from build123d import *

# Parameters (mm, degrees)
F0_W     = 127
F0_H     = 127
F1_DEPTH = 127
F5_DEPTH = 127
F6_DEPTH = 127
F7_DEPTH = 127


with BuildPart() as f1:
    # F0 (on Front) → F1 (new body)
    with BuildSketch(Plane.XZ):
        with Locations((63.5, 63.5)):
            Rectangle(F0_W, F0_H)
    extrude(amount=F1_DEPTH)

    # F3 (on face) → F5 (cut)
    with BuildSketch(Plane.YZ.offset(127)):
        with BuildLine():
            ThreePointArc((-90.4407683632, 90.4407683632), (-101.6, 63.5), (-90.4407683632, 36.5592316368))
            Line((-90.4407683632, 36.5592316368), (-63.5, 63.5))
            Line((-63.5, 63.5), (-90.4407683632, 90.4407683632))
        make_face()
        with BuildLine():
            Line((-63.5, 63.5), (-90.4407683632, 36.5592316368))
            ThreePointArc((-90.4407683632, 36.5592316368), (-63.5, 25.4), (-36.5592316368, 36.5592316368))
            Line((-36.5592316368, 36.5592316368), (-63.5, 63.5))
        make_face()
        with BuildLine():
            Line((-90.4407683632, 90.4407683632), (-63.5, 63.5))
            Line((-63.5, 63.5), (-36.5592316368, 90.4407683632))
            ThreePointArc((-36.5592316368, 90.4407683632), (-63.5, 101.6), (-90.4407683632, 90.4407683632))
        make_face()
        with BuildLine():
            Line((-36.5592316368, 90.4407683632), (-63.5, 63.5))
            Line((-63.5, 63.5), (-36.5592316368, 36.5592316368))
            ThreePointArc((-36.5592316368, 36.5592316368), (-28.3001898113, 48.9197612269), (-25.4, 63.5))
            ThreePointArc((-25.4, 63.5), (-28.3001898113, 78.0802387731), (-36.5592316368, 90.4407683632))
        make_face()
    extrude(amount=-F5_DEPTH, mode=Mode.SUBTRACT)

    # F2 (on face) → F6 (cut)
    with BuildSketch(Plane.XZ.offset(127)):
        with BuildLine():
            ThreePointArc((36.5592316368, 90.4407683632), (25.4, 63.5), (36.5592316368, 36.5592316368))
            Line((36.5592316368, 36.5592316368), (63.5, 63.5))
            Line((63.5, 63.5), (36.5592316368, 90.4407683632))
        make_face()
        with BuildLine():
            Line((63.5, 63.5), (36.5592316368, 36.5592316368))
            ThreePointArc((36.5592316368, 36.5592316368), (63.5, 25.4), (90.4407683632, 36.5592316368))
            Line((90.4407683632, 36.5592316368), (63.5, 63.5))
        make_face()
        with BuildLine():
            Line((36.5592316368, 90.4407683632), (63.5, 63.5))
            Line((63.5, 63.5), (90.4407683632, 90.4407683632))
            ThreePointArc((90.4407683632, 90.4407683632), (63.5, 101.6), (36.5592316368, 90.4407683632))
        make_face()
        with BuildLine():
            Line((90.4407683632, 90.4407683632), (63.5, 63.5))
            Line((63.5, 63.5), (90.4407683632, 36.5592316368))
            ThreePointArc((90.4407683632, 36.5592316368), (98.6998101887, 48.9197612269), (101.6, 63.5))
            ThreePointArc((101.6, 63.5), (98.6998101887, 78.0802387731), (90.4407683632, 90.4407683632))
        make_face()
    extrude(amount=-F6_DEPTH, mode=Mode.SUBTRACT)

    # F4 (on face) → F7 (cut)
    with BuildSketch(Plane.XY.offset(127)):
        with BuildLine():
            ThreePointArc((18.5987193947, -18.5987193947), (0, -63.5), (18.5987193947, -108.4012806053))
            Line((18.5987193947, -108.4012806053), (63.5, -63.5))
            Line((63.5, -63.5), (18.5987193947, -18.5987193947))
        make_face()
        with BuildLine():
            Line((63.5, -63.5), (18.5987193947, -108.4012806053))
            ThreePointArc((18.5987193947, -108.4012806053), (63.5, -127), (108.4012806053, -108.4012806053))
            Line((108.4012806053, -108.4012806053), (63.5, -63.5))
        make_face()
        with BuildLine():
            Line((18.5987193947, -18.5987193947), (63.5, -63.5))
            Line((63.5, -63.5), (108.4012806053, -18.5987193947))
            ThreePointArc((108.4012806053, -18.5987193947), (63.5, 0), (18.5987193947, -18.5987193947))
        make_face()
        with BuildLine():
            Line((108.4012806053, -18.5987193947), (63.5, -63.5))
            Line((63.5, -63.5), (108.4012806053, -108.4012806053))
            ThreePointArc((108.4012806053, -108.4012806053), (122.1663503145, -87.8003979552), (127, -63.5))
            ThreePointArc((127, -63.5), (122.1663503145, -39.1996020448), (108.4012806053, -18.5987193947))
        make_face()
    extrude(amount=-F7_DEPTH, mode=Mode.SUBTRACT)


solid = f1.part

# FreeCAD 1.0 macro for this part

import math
import FreeCAD as App
import Part
import Sketcher

V = App.Vector
Q = App.Units.Quantity


def add_polygon(sketch, points):
    """Adds a closed chain of lines whose ends are joined by coincident constraints."""
    first, n = sketch.GeometryCount, len(points)
    for a, b in zip(points, points[1:] + points[:1]):
        sketch.addGeometry(Part.LineSegment(App.Vector(*a, 0), App.Vector(*b, 0)), False)
    for i in range(n):
        sketch.addConstraint(Sketcher.Constraint("Coincident", first + i, 2, first + (i + 1) % n, 1))

doc = App.newDocument("Part")
body = doc.addObject("PartDesign::Body", "Body")
body.AllowCompound = True

sketch1 = doc.addObject("Sketcher::SketchObject", "Sketch")
body.addObject(sketch1)
sketch1.AttachmentSupport = (doc.XZ_Plane, [""])
sketch1.MapMode = "FlatFace"
add_polygon(sketch1, [(0, 127), (0, 0), (127, 0), (127, 127)])
sketch1.addConstraint(Sketcher.Constraint("Vertical", 0))
sketch1.addConstraint(Sketcher.Constraint("Horizontal", 1))
sketch1.addConstraint(Sketcher.Constraint("Vertical", 2))
sketch1.addConstraint(Sketcher.Constraint("Horizontal", 3))
sketch1.addConstraint(Sketcher.Constraint("Coincident", 0, 2, -1, 1))
sketch1.addConstraint(Sketcher.Constraint("Equal", 3, 0))
sketch1.addConstraint(Sketcher.Constraint("DistanceX", 1, 1, 1, 2, Q("5 in")))
pad1 = doc.addObject("PartDesign::Pad", "Pad")
body.addObject(pad1)
pad1.Profile = sketch1
pad1.Length = Q("5 in")

sketch2 = doc.addObject("Sketcher::SketchObject", "Sketch001")
body.addObject(sketch2)
sketch2.AttachmentSupport = (doc.YZ_Plane, [""])
sketch2.MapMode = "FlatFace"
sketch2.AttachmentOffset = App.Placement(V(0, 0, 5 * 25.4), App.Rotation())
sketch2.addGeometry(Part.ArcOfCircle(Part.Circle(V(-64, 64, 0), V(0, 0, 1), 38), math.radians(135), math.radians(225)), False)
sketch2.addGeometry(Part.ArcOfCircle(Part.Circle(V(-64, 64, 0), V(0, 0, 1), 38), math.radians(-135), math.radians(-45)), False)
sketch2.addGeometry(Part.ArcOfCircle(Part.Circle(V(-64, 64, 0), V(0, 0, 1), 38), math.radians(-45), math.radians(0)), False)
sketch2.addGeometry(Part.ArcOfCircle(Part.Circle(V(-64, 64, 0), V(0, 0, 1), 38), math.radians(0), math.radians(45)), False)
sketch2.addGeometry(Part.ArcOfCircle(Part.Circle(V(-64, 64, 0), V(0, 0, 1), 38), math.radians(45), math.radians(135)), False)
sketch2.addConstraint(Sketcher.Constraint("Tangent", 0, 2, 1, 1))
sketch2.addConstraint(Sketcher.Constraint("Tangent", 1, 2, 2, 1))
sketch2.addConstraint(Sketcher.Constraint("Tangent", 2, 2, 3, 1))
sketch2.addConstraint(Sketcher.Constraint("Tangent", 3, 2, 4, 1))
sketch2.addConstraint(Sketcher.Constraint("Tangent", 4, 2, 0, 1))
sketch2.addConstraint(Sketcher.Constraint("Coincident", 2, 3, 0, 3))
sketch2.addConstraint(Sketcher.Constraint("Horizontal", 0, 2, 1, 2))
sketch2.addConstraint(Sketcher.Constraint("Horizontal", 4, 3, 2, 2))
sketch2.addConstraint(Sketcher.Constraint("Horizontal", 3, 2, 4, 2))
sketch2.addConstraint(Sketcher.Constraint("Vertical", 1, 2, 3, 2))
sketch2.addConstraint(Sketcher.Constraint("Radius", 0, Q("1.5 in")))
sketch2.addConstraint(Sketcher.Constraint("DistanceX", 2, 2, -1, 1, Q("1 in")))
sketch2.addConstraint(Sketcher.Constraint("DistanceY", -1, 1, 0, 3, Q("2.5 in")))
sketch2.addConstraint(Sketcher.Constraint("DistanceX", 0, 2, -1, 1, Q("90.440768 mm")))
pocket1 = doc.addObject("PartDesign::Pocket", "Pocket")
body.addObject(pocket1)
pocket1.Profile = sketch2
pocket1.Length = Q("5 in")

sketch3 = doc.addObject("Sketcher::SketchObject", "Sketch002")
body.addObject(sketch3)
sketch3.AttachmentSupport = (doc.XZ_Plane, [""])
sketch3.MapMode = "FlatFace"
sketch3.AttachmentOffset = App.Placement(V(0, 0, 5 * 25.4), App.Rotation())
sketch3.addGeometry(Part.ArcOfCircle(Part.Circle(V(64, 64, 0), V(0, 0, 1), 38), math.radians(135), math.radians(225)), False)
sketch3.addGeometry(Part.ArcOfCircle(Part.Circle(V(64, 64, 0), V(0, 0, 1), 38), math.radians(-135), math.radians(-45)), False)
sketch3.addGeometry(Part.ArcOfCircle(Part.Circle(V(64, 64, 0), V(0, 0, 1), 38), math.radians(-45), math.radians(0)), False)
sketch3.addGeometry(Part.ArcOfCircle(Part.Circle(V(64, 64, 0), V(0, 0, 1), 38), math.radians(0), math.radians(45)), False)
sketch3.addGeometry(Part.ArcOfCircle(Part.Circle(V(64, 64, 0), V(0, 0, 1), 38), math.radians(45), math.radians(135)), False)
sketch3.addConstraint(Sketcher.Constraint("Tangent", 0, 2, 1, 1))
sketch3.addConstraint(Sketcher.Constraint("Tangent", 1, 2, 2, 1))
sketch3.addConstraint(Sketcher.Constraint("Tangent", 2, 2, 3, 1))
sketch3.addConstraint(Sketcher.Constraint("Tangent", 3, 2, 4, 1))
sketch3.addConstraint(Sketcher.Constraint("Tangent", 4, 2, 0, 1))
sketch3.addConstraint(Sketcher.Constraint("Coincident", 2, 3, 0, 3))
sketch3.addConstraint(Sketcher.Constraint("Horizontal", 0, 2, 1, 2))
sketch3.addConstraint(Sketcher.Constraint("Horizontal", 4, 3, 2, 2))
sketch3.addConstraint(Sketcher.Constraint("Horizontal", 3, 2, 4, 2))
sketch3.addConstraint(Sketcher.Constraint("Vertical", 1, 2, 3, 2))
sketch3.addConstraint(Sketcher.Constraint("Radius", 0, Q("1.5 in")))
sketch3.addConstraint(Sketcher.Constraint("DistanceX", -1, 1, 2, 2, Q("4 in")))
sketch3.addConstraint(Sketcher.Constraint("DistanceY", -1, 1, 0, 3, Q("2.5 in")))
sketch3.addConstraint(Sketcher.Constraint("DistanceX", -1, 1, 0, 2, Q("36.559232 mm")))
pocket2 = doc.addObject("PartDesign::Pocket", "Pocket001")
body.addObject(pocket2)
pocket2.Profile = sketch3
pocket2.Length = Q("5 in")

sketch4 = doc.addObject("Sketcher::SketchObject", "Sketch003")
body.addObject(sketch4)
sketch4.AttachmentSupport = (doc.XY_Plane, [""])
sketch4.MapMode = "FlatFace"
sketch4.AttachmentOffset = App.Placement(V(0, 0, 5 * 25.4), App.Rotation())
sketch4.addGeometry(Part.ArcOfCircle(Part.Circle(V(64, -64, 0), V(0, 0, 1), 64), math.radians(135), math.radians(225)), False)
sketch4.addGeometry(Part.ArcOfCircle(Part.Circle(V(64, -64, 0), V(0, 0, 1), 64), math.radians(-135), math.radians(-45)), False)
sketch4.addGeometry(Part.ArcOfCircle(Part.Circle(V(64, -64, 0), V(0, 0, 1), 63), math.radians(-45), math.radians(0)), False)
sketch4.addGeometry(Part.ArcOfCircle(Part.Circle(V(64, -64, 0), V(0, 0, 1), 63), math.radians(0), math.radians(45)), False)
sketch4.addGeometry(Part.ArcOfCircle(Part.Circle(V(64, -64, 0), V(0, 0, 1), 64), math.radians(45), math.radians(135)), False)
sketch4.addConstraint(Sketcher.Constraint("Tangent", 0, 2, 1, 1))
sketch4.addConstraint(Sketcher.Constraint("Tangent", 1, 2, 2, 1))
sketch4.addConstraint(Sketcher.Constraint("Tangent", 2, 2, 3, 1))
sketch4.addConstraint(Sketcher.Constraint("Tangent", 3, 2, 4, 1))
sketch4.addConstraint(Sketcher.Constraint("Tangent", 4, 2, 0, 1))
sketch4.addConstraint(Sketcher.Constraint("Coincident", 2, 3, 0, 3))
sketch4.addConstraint(Sketcher.Constraint("Horizontal", 0, 2, 1, 2))
sketch4.addConstraint(Sketcher.Constraint("Horizontal", 4, 3, 2, 2))
sketch4.addConstraint(Sketcher.Constraint("Horizontal", 3, 2, 4, 2))
sketch4.addConstraint(Sketcher.Constraint("Vertical", 1, 2, 3, 2))
sketch4.addConstraint(Sketcher.Constraint("Radius", 0, Q("2.5 in")))
sketch4.addConstraint(Sketcher.Constraint("DistanceX", -1, 1, 2, 2, Q("5 in")))
sketch4.addConstraint(Sketcher.Constraint("DistanceY", 0, 3, -1, 1, Q("2.5 in")))
sketch4.addConstraint(Sketcher.Constraint("DistanceX", -1, 1, 0, 2, Q("18.598719 mm")))
pocket3 = doc.addObject("PartDesign::Pocket", "Pocket002")
body.addObject(pocket3)
pocket3.Profile = sketch4
pocket3.Length = Q("5 in")

doc.recompute()
